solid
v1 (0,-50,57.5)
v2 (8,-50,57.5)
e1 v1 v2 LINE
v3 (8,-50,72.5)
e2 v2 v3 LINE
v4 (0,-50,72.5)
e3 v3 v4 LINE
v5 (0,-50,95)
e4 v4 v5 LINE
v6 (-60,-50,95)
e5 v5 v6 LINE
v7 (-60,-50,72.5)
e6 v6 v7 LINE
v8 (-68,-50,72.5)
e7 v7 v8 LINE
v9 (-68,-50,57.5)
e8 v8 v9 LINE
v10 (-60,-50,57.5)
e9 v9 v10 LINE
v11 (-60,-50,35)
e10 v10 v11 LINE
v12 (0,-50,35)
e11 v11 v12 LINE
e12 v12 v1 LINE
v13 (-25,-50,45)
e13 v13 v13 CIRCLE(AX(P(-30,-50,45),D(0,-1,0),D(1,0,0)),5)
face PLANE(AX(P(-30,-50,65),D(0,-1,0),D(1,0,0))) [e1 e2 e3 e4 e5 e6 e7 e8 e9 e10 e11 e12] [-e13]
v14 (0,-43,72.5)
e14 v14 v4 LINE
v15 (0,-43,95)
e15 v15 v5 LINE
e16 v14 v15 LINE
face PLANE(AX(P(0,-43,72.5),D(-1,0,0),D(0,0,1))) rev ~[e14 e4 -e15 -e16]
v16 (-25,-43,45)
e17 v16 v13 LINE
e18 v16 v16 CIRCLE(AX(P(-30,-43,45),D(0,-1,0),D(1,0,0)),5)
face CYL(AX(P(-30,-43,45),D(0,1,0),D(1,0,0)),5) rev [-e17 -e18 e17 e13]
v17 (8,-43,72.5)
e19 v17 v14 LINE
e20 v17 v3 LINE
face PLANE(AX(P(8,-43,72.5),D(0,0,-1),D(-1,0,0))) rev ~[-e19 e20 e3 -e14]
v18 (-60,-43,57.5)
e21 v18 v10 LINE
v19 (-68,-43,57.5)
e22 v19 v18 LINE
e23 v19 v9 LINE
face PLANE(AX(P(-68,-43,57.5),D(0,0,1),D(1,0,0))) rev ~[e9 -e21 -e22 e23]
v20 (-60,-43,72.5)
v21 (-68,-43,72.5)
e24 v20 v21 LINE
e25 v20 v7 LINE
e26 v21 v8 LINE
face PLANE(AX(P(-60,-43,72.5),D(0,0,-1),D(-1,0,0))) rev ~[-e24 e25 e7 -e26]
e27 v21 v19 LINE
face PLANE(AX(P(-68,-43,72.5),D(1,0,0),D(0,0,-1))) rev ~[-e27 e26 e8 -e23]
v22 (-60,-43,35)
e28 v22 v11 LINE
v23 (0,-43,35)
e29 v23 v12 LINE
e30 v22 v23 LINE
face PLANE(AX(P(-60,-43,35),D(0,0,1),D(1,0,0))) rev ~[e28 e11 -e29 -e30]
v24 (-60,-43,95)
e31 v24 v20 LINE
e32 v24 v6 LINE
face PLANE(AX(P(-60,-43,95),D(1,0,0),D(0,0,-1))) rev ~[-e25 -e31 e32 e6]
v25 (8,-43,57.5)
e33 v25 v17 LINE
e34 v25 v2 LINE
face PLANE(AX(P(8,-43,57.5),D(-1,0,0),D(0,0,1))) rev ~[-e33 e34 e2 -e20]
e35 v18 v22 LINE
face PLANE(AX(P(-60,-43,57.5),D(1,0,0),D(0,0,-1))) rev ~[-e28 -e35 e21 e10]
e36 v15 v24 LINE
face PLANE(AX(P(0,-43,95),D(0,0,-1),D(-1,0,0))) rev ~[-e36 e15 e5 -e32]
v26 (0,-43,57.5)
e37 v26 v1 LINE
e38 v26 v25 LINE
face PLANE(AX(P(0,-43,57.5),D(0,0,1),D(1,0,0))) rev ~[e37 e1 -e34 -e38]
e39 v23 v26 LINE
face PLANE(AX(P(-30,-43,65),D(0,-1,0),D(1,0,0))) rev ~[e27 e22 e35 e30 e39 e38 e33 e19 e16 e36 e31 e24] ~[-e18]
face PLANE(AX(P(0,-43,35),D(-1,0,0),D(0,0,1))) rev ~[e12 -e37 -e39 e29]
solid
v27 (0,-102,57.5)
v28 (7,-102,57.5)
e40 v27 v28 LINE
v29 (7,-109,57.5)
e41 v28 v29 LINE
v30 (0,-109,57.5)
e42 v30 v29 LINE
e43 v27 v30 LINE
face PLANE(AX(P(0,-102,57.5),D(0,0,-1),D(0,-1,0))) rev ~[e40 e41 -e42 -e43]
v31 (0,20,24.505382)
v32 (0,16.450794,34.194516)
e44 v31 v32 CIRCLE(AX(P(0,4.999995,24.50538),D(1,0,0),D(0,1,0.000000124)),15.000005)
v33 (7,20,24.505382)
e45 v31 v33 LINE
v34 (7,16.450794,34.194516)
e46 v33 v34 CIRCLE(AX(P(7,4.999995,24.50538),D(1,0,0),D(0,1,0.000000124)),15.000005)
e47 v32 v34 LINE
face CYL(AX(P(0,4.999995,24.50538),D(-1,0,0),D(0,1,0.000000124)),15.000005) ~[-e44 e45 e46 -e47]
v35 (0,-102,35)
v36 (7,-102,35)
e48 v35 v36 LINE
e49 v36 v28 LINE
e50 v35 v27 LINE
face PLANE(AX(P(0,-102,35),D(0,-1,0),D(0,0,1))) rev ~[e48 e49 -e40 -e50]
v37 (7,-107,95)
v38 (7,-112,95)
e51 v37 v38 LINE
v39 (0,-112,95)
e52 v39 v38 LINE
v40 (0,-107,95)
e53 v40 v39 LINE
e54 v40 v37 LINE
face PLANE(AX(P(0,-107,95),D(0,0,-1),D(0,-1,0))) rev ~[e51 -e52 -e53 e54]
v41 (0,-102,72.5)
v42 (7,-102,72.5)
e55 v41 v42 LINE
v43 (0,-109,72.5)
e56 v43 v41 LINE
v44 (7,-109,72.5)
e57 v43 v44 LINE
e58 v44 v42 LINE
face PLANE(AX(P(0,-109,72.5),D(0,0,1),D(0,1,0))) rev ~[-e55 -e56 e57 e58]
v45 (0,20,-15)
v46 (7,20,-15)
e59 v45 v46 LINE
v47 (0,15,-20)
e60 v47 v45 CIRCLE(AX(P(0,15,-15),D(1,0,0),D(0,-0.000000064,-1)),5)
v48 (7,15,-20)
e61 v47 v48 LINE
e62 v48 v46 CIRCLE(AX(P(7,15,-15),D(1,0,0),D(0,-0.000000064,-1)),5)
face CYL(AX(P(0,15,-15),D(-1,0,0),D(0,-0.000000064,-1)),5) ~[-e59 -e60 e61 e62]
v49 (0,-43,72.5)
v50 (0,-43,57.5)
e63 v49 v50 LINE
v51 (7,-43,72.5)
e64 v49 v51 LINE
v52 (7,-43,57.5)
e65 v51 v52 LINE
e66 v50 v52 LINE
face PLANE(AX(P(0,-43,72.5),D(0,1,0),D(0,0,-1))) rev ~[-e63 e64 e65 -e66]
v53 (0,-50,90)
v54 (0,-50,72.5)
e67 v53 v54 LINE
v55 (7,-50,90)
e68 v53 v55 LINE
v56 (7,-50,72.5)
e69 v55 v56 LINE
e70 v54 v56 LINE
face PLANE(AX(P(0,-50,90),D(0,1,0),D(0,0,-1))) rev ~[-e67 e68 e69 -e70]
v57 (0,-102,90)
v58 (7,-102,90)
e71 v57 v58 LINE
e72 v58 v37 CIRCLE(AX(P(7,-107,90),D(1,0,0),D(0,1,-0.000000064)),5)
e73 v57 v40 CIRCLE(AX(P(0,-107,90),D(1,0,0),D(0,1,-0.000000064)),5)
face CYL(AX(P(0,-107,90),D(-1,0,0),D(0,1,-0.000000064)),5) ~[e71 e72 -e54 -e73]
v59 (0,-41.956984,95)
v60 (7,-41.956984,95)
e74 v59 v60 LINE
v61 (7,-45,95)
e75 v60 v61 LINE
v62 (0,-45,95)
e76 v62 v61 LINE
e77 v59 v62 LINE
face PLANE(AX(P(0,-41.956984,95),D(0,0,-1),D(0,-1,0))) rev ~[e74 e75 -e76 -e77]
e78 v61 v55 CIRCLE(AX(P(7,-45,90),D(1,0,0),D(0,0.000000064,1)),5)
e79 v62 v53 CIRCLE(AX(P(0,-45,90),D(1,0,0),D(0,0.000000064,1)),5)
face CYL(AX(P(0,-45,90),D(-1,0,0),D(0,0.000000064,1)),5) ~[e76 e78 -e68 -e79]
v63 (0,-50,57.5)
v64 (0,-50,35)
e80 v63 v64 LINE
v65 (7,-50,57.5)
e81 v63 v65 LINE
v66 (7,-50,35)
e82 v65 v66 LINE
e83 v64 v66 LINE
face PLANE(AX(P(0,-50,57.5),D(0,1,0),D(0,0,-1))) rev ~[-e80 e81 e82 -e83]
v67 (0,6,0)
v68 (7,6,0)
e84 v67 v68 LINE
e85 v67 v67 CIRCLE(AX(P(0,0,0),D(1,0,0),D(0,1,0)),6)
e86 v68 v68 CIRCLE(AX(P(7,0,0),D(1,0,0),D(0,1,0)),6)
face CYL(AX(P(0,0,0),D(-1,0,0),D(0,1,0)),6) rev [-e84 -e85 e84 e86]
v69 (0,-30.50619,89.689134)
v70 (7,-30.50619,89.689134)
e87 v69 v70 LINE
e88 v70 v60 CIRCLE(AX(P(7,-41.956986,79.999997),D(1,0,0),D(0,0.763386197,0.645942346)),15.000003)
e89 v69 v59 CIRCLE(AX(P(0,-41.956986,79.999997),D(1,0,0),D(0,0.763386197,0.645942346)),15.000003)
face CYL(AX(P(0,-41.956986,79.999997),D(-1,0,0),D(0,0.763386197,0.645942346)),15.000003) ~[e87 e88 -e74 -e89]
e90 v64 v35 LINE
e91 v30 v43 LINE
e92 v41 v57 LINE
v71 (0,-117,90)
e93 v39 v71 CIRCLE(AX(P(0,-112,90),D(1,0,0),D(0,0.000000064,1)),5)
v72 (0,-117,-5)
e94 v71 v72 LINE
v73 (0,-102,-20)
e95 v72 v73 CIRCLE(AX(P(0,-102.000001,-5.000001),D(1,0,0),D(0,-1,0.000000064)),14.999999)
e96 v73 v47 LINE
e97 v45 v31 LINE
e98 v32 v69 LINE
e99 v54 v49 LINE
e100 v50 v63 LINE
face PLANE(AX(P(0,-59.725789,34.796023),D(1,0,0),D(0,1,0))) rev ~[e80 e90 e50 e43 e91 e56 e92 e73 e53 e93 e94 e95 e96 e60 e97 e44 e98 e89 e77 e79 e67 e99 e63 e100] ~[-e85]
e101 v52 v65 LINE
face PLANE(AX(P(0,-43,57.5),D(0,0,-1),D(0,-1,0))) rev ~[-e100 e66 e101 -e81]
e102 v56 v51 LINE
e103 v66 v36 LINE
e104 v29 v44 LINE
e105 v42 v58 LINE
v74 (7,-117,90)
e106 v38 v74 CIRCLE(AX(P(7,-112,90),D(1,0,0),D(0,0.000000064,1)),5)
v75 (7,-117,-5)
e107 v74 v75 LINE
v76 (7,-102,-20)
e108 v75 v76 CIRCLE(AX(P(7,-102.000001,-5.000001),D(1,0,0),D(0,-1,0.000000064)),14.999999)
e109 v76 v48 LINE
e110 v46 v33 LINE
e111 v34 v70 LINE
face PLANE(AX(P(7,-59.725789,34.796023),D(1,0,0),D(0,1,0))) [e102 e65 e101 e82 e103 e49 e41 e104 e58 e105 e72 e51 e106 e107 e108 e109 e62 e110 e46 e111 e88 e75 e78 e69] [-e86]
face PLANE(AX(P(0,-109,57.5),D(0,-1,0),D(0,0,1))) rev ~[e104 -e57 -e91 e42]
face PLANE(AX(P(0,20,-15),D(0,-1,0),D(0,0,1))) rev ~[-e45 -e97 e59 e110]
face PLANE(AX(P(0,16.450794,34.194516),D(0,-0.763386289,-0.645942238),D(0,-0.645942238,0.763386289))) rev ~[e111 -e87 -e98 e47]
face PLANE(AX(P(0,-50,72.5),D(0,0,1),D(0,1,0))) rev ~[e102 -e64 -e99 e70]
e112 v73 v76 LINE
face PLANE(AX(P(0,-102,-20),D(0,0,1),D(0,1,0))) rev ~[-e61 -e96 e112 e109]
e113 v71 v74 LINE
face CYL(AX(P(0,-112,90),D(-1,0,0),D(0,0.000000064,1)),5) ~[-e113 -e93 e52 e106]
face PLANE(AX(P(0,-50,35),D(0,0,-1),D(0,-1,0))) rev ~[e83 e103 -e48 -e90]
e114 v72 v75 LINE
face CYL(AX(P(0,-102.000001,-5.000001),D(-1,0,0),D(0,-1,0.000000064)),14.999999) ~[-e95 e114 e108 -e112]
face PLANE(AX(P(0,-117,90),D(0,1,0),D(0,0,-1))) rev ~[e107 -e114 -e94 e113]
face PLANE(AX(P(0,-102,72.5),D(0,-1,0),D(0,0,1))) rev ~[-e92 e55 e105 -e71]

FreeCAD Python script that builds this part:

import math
import FreeCAD as App
import Part
import Sketcher

doc = App.newDocument("Part")
body = doc.addObject("PartDesign::Body", "Body")

# Sketch on YZ plane
sketch1 = body.newObject("Sketcher::SketchObject", "Sketch")
sketch1.AttachmentSupport = (doc.getObject("YZ_Plane"), [""])
sketch1.MapMode = "FlatFace"
sketch1.addGeometry(Part.LineSegment(App.Vector(-102, -20, 0), App.Vector(15, -20, 0)), False)
sketch1.addGeometry(Part.ArcOfCircle(Part.Circle(App.Vector(15, -15, 0), App.Vector(0, 0, 1), 5), math.radians(-90), math.radians(0)), False)
sketch1.addGeometry(Part.LineSegment(App.Vector(20, -15, 0), App.Vector(20, 24.5, 0)), False)
sketch1.addGeometry(Part.ArcOfCircle(Part.Circle(App.Vector(5, 24.5, 0), App.Vector(0, 0, 1), 15), math.radians(0), math.radians(40)), False)
sketch1.addGeometry(Part.LineSegment(App.Vector(16.5, 34.2, 0), App.Vector(-30.5, 89.7, 0)), False)
sketch1.addGeometry(Part.ArcOfCircle(Part.Circle(App.Vector(-42, 80, 0), App.Vector(0, 0, 1), 15), math.radians(40), math.radians(90)), False)
sketch1.addGeometry(Part.LineSegment(App.Vector(-42, 95, 0), App.Vector(-45, 95, 0)), False)
sketch1.addGeometry(Part.ArcOfCircle(Part.Circle(App.Vector(-45, 90, 0), App.Vector(0, 0, 1), 5), math.radians(90), math.radians(180)), False)
sketch1.addGeometry(Part.LineSegment(App.Vector(-50, 90, 0), App.Vector(-50, 72.5, 0)), False)
sketch1.addGeometry(Part.LineSegment(App.Vector(-50, 72.5, 0), App.Vector(-43, 72.5, 0)), False)
sketch1.addGeometry(Part.LineSegment(App.Vector(-43, 72.5, 0), App.Vector(-43, 57.5, 0)), False)
sketch1.addGeometry(Part.LineSegment(App.Vector(-43, 57.5, 0), App.Vector(-50, 57.5, 0)), False)
sketch1.addGeometry(Part.LineSegment(App.Vector(-50, 57.5, 0), App.Vector(-50, 35, 0)), False)
sketch1.addGeometry(Part.LineSegment(App.Vector(-50, 35, 0), App.Vector(-102, 35, 0)), False)
sketch1.addGeometry(Part.LineSegment(App.Vector(-102, 35, 0), App.Vector(-102, 57.5, 0)), False)
sketch1.addGeometry(Part.LineSegment(App.Vector(-102, 57.5, 0), App.Vector(-109, 57.5, 0)), False)
sketch1.addGeometry(Part.LineSegment(App.Vector(-109, 57.5, 0), App.Vector(-109, 72.5, 0)), False)
sketch1.addGeometry(Part.LineSegment(App.Vector(-109, 72.5, 0), App.Vector(-102, 72.5, 0)), False)
sketch1.addGeometry(Part.LineSegment(App.Vector(-102, 72.5, 0), App.Vector(-102, 90, 0)), False)
sketch1.addGeometry(Part.ArcOfCircle(Part.Circle(App.Vector(-107, 90, 0), App.Vector(0, 0, 1), 5), math.radians(0), math.radians(90)), False)
sketch1.addGeometry(Part.LineSegment(App.Vector(-107, 95, 0), App.Vector(-112, 95, 0)), False)
sketch1.addGeometry(Part.ArcOfCircle(Part.Circle(App.Vector(-112, 90, 0), App.Vector(0, 0, 1), 5), math.radians(90), math.radians(180)), False)
sketch1.addGeometry(Part.LineSegment(App.Vector(-117, 90, 0), App.Vector(-117, -5, 0)), False)
sketch1.addGeometry(Part.ArcOfCircle(Part.Circle(App.Vector(-102, -5, 0), App.Vector(0, 0, 1), 15), math.radians(180), math.radians(270)), False)
sketch1.addGeometry(Part.Circle(App.Vector(0, 0, 0), App.Vector(0, 0, 1), 6), False)
sketch1.addConstraint(Sketcher.Constraint("Tangent", 0, 2, 1, 1))
sketch1.addConstraint(Sketcher.Constraint("Tangent", 1, 2, 2, 1))
sketch1.addConstraint(Sketcher.Constraint("Tangent", 2, 2, 3, 1))
sketch1.addConstraint(Sketcher.Constraint("Tangent", 3, 2, 4, 1))
sketch1.addConstraint(Sketcher.Constraint("Tangent", 4, 2, 5, 1))
sketch1.addConstraint(Sketcher.Constraint("Tangent", 5, 2, 6, 1))
sketch1.addConstraint(Sketcher.Constraint("Tangent", 6, 2, 7, 1))
sketch1.addConstraint(Sketcher.Constraint("Tangent", 7, 2, 8, 1))
sketch1.addConstraint(Sketcher.Constraint("Coincident", 8, 2, 9, 1))
sketch1.addConstraint(Sketcher.Constraint("Coincident", 9, 2, 10, 1))
sketch1.addConstraint(Sketcher.Constraint("Coincident", 10, 2, 11, 1))
sketch1.addConstraint(Sketcher.Constraint("Coincident", 11, 2, 12, 1))
sketch1.addConstraint(Sketcher.Constraint("Coincident", 12, 2, 13, 1))
sketch1.addConstraint(Sketcher.Constraint("Coincident", 13, 2, 14, 1))
sketch1.addConstraint(Sketcher.Constraint("Coincident", 14, 2, 15, 1))
sketch1.addConstraint(Sketcher.Constraint("Coincident", 15, 2, 16, 1))
sketch1.addConstraint(Sketcher.Constraint("Coincident", 16, 2, 17, 1))
sketch1.addConstraint(Sketcher.Constraint("Coincident", 17, 2, 18, 1))
sketch1.addConstraint(Sketcher.Constraint("Tangent", 18, 2, 19, 1))
sketch1.addConstraint(Sketcher.Constraint("Tangent", 19, 2, 20, 1))
sketch1.addConstraint(Sketcher.Constraint("Tangent", 20, 2, 21, 1))
sketch1.addConstraint(Sketcher.Constraint("Tangent", 21, 2, 22, 1))
sketch1.addConstraint(Sketcher.Constraint("Tangent", 22, 2, 23, 1))
sketch1.addConstraint(Sketcher.Constraint("Tangent", 23, 2, 0, 1))
sketch1.addConstraint(Sketcher.Constraint("Horizontal", 0))
sketch1.addConstraint(Sketcher.Constraint("Vertical", 2))
sketch1.addConstraint(Sketcher.Constraint("Horizontal", 6))
sketch1.addConstraint(Sketcher.Constraint("Vertical", 8))
sketch1.addConstraint(Sketcher.Constraint("Horizontal", 9))
sketch1.addConstraint(Sketcher.Constraint("Vertical", 10))
sketch1.addConstraint(Sketcher.Constraint("Horizontal", 11))
sketch1.addConstraint(Sketcher.Constraint("Vertical", 12))
sketch1.addConstraint(Sketcher.Constraint("Horizontal", 13))
sketch1.addConstraint(Sketcher.Constraint("Vertical", 14))
sketch1.addConstraint(Sketcher.Constraint("Horizontal", 15))
sketch1.addConstraint(Sketcher.Constraint("Vertical", 16))
sketch1.addConstraint(Sketcher.Constraint("Horizontal", 17))
sketch1.addConstraint(Sketcher.Constraint("Vertical", 18))
sketch1.addConstraint(Sketcher.Constraint("Horizontal", 20))
sketch1.addConstraint(Sketcher.Constraint("Vertical", 22))
sketch1.addConstraint(Sketcher.Constraint("Coincident", 24, 3, -1, 1))
sketch1.addConstraint(Sketcher.Constraint("Equal", 3, 5))
sketch1.addConstraint(Sketcher.Constraint("Equal", 1, 7))
sketch1.addConstraint(Sketcher.Constraint("Equal", 7, 19))
sketch1.addConstraint(Sketcher.Constraint("Equal", 19, 21))
sketch1.addConstraint(Sketcher.Constraint("Horizontal", 7, 3, 19, 3))
sketch1.addConstraint(Sketcher.Constraint("Horizontal", 11, 2, 14, 2))
sketch1.addConstraint(Sketcher.Constraint("Horizontal", 9, 2, 16, 2))
sketch1.addConstraint(Sketcher.Constraint("Vertical", 8, 2, 11, 2))
sketch1.addConstraint(Sketcher.Constraint("Vertical", 23, 3, 13, 2))
sketch1.addConstraint(Sketcher.Constraint("Vertical", 14, 2, 17, 2))
sketch1.addConstraint(Sketcher.Constraint("Equal", 11, 15))
sketch1.addConstraint(Sketcher.Constraint("Diameter", 24, 12.0))
sketch1.addConstraint(Sketcher.Constraint("Radius", 1, 5.0))
sketch1.addConstraint(Sketcher.Constraint("Radius", 23, 14.999999))
sketch1.addConstraint(Sketcher.Constraint("DistanceX", 0, 1, 0, 2, 117.0))
sketch1.addConstraint(Sketcher.Constraint("DistanceX", 9, 1, 9, 2, 7.0))
sketch1.addConstraint(Sketcher.Constraint("DistanceX", 13, 2, 13, 1, 52.0))
sketch1.addConstraint(Sketcher.Constraint("DistanceY", 10, 2, 10, 1, 15.0))
sketch1.addConstraint(Sketcher.Constraint("DistanceY", 22, 2, 22, 1, 95.0))
sketch1.addConstraint(Sketcher.Constraint("DistanceY", 8, 2, 8, 1, 17.5))
sketch1.addConstraint(Sketcher.Constraint("DistanceY", 12, 2, 12, 1, 22.5))
sketch1.addConstraint(Sketcher.Constraint("DistanceX", -1, 1, 1, 3, 15.0))
sketch1.addConstraint(Sketcher.Constraint("DistanceY", 1, 3, -1, 1, 15.0))
sketch1.addConstraint(Sketcher.Constraint("Radius", 3, 15.000005))
sketch1.addConstraint(Sketcher.Constraint("DistanceY", 2, 1, 2, 2, 39.505382))
sketch1.addConstraint(Sketcher.Constraint("DistanceX", 3, 3, 3, 2, 11.450799))
pad1 = body.newObject("PartDesign::Pad", "Pad")
pad1.Profile = sketch1
pad1.Length = 7
body2 = doc.addObject("PartDesign::Body", "Body001")

# Sketch on XZ plane
sketch2 = body2.newObject("Sketcher::SketchObject", "Sketch001")
sketch2.AttachmentSupport = (doc.getObject("XZ_Plane001"), [""])
sketch2.MapMode = "FlatFace"
sketch2.AttachmentOffset = App.Placement(App.Vector(0, 0, 43), App.Rotation())
sketch2.addGeometry(Part.LineSegment(App.Vector(8, 58, 0), App.Vector(8, 72, 0)), False)
sketch2.addGeometry(Part.LineSegment(App.Vector(8, 72, 0), App.Vector(0, 72, 0)), False)
sketch2.addGeometry(Part.LineSegment(App.Vector(0, 72, 0), App.Vector(0, 95, 0)), False)
sketch2.addGeometry(Part.LineSegment(App.Vector(0, 95, 0), App.Vector(-60, 95, 0)), False)
sketch2.addGeometry(Part.LineSegment(App.Vector(-60, 95, 0), App.Vector(-60, 72, 0)), False)
sketch2.addGeometry(Part.LineSegment(App.Vector(-60, 72, 0), App.Vector(-68, 72, 0)), False)
sketch2.addGeometry(Part.LineSegment(App.Vector(-68, 72, 0), App.Vector(-68, 58, 0)), False)
sketch2.addGeometry(Part.LineSegment(App.Vector(-68, 58, 0), App.Vector(-60, 58, 0)), False)
sketch2.addGeometry(Part.LineSegment(App.Vector(-60, 58, 0), App.Vector(-60, 35, 0)), False)
sketch2.addGeometry(Part.LineSegment(App.Vector(-60, 35, 0), App.Vector(0, 35, 0)), False)
sketch2.addGeometry(Part.LineSegment(App.Vector(0, 35, 0), App.Vector(0, 58, 0)), False)
sketch2.addGeometry(Part.LineSegment(App.Vector(0, 58, 0), App.Vector(8, 58, 0)), False)
sketch2.addGeometry(Part.Circle(App.Vector(-30, 45, 0), App.Vector(0, 0, 1), 5), False)
sketch2.addConstraint(Sketcher.Constraint("Coincident", 0, 2, 1, 1))
sketch2.addConstraint(Sketcher.Constraint("Coincident", 1, 2, 2, 1))
sketch2.addConstraint(Sketcher.Constraint("Coincident", 2, 2, 3, 1))
sketch2.addConstraint(Sketcher.Constraint("Coincident", 3, 2, 4, 1))
sketch2.addConstraint(Sketcher.Constraint("Coincident", 4, 2, 5, 1))
sketch2.addConstraint(Sketcher.Constraint("Coincident", 5, 2, 6, 1))
sketch2.addConstraint(Sketcher.Constraint("Coincident", 6, 2, 7, 1))
sketch2.addConstraint(Sketcher.Constraint("Coincident", 7, 2, 8, 1))
sketch2.addConstraint(Sketcher.Constraint("Coincident", 8, 2, 9, 1))
sketch2.addConstraint(Sketcher.Constraint("Coincident", 9, 2, 10, 1))
sketch2.addConstraint(Sketcher.Constraint("Coincident", 10, 2, 11, 1))
sketch2.addConstraint(Sketcher.Constraint("Coincident", 11, 2, 0, 1))
sketch2.addConstraint(Sketcher.Constraint("Vertical", 0))
sketch2.addConstraint(Sketcher.Constraint("Horizontal", 1))
sketch2.addConstraint(Sketcher.Constraint("Vertical", 2))
sketch2.addConstraint(Sketcher.Constraint("Horizontal", 3))
sketch2.addConstraint(Sketcher.Constraint("Vertical", 4))
sketch2.addConstraint(Sketcher.Constraint("Horizontal", 5))
sketch2.addConstraint(Sketcher.Constraint("Vertical", 6))
sketch2.addConstraint(Sketcher.Constraint("Horizontal", 7))
sketch2.addConstraint(Sketcher.Constraint("Vertical", 8))
sketch2.addConstraint(Sketcher.Constraint("Horizontal", 9))
sketch2.addConstraint(Sketcher.Constraint("Vertical", 10))
sketch2.addConstraint(Sketcher.Constraint("Horizontal", 11))
sketch2.addConstraint(Sketcher.Constraint("PointOnObject", 1, 2, -2))
sketch2.addConstraint(Sketcher.Constraint("PointOnObject", 9, 2, -2))
sketch2.addConstraint(Sketcher.Constraint("Horizontal", 1, 2, 4, 2))
sketch2.addConstraint(Sketcher.Constraint("Horizontal", 7, 2, 10, 2))
sketch2.addConstraint(Sketcher.Constraint("Vertical", 4, 2, 7, 2))
sketch2.addConstraint(Sketcher.Constraint("Equal", 1, 5))
sketch2.addConstraint(Sketcher.Constraint("Equal", 4, 8))
sketch2.addConstraint(Sketcher.Constraint("Diameter", 12, 10.0))
sketch2.addConstraint(Sketcher.Constraint("DistanceX", 1, 2, 1, 1, 8.0))
sketch2.addConstraint(Sketcher.Constraint("DistanceX", 3, 2, 3, 1, 60.0))
sketch2.addConstraint(Sketcher.Constraint("DistanceY", 0, 1, 0, 2, 15.0))
sketch2.addConstraint(Sketcher.Constraint("DistanceY", 2, 1, 2, 2, 22.5))
sketch2.addConstraint(Sketcher.Constraint("DistanceX", 12, 3, -1, 1, 30.0))
sketch2.addConstraint(Sketcher.Constraint("DistanceY", -1, 1, 12, 3, 45.0))
sketch2.addConstraint(Sketcher.Constraint("DistanceY", -1, 1, 2, 2, 95.0))
pad2 = body2.newObject("PartDesign::Pad", "Pad001")
pad2.Profile = sketch2
pad2.Length = 7

doc.recompute()
